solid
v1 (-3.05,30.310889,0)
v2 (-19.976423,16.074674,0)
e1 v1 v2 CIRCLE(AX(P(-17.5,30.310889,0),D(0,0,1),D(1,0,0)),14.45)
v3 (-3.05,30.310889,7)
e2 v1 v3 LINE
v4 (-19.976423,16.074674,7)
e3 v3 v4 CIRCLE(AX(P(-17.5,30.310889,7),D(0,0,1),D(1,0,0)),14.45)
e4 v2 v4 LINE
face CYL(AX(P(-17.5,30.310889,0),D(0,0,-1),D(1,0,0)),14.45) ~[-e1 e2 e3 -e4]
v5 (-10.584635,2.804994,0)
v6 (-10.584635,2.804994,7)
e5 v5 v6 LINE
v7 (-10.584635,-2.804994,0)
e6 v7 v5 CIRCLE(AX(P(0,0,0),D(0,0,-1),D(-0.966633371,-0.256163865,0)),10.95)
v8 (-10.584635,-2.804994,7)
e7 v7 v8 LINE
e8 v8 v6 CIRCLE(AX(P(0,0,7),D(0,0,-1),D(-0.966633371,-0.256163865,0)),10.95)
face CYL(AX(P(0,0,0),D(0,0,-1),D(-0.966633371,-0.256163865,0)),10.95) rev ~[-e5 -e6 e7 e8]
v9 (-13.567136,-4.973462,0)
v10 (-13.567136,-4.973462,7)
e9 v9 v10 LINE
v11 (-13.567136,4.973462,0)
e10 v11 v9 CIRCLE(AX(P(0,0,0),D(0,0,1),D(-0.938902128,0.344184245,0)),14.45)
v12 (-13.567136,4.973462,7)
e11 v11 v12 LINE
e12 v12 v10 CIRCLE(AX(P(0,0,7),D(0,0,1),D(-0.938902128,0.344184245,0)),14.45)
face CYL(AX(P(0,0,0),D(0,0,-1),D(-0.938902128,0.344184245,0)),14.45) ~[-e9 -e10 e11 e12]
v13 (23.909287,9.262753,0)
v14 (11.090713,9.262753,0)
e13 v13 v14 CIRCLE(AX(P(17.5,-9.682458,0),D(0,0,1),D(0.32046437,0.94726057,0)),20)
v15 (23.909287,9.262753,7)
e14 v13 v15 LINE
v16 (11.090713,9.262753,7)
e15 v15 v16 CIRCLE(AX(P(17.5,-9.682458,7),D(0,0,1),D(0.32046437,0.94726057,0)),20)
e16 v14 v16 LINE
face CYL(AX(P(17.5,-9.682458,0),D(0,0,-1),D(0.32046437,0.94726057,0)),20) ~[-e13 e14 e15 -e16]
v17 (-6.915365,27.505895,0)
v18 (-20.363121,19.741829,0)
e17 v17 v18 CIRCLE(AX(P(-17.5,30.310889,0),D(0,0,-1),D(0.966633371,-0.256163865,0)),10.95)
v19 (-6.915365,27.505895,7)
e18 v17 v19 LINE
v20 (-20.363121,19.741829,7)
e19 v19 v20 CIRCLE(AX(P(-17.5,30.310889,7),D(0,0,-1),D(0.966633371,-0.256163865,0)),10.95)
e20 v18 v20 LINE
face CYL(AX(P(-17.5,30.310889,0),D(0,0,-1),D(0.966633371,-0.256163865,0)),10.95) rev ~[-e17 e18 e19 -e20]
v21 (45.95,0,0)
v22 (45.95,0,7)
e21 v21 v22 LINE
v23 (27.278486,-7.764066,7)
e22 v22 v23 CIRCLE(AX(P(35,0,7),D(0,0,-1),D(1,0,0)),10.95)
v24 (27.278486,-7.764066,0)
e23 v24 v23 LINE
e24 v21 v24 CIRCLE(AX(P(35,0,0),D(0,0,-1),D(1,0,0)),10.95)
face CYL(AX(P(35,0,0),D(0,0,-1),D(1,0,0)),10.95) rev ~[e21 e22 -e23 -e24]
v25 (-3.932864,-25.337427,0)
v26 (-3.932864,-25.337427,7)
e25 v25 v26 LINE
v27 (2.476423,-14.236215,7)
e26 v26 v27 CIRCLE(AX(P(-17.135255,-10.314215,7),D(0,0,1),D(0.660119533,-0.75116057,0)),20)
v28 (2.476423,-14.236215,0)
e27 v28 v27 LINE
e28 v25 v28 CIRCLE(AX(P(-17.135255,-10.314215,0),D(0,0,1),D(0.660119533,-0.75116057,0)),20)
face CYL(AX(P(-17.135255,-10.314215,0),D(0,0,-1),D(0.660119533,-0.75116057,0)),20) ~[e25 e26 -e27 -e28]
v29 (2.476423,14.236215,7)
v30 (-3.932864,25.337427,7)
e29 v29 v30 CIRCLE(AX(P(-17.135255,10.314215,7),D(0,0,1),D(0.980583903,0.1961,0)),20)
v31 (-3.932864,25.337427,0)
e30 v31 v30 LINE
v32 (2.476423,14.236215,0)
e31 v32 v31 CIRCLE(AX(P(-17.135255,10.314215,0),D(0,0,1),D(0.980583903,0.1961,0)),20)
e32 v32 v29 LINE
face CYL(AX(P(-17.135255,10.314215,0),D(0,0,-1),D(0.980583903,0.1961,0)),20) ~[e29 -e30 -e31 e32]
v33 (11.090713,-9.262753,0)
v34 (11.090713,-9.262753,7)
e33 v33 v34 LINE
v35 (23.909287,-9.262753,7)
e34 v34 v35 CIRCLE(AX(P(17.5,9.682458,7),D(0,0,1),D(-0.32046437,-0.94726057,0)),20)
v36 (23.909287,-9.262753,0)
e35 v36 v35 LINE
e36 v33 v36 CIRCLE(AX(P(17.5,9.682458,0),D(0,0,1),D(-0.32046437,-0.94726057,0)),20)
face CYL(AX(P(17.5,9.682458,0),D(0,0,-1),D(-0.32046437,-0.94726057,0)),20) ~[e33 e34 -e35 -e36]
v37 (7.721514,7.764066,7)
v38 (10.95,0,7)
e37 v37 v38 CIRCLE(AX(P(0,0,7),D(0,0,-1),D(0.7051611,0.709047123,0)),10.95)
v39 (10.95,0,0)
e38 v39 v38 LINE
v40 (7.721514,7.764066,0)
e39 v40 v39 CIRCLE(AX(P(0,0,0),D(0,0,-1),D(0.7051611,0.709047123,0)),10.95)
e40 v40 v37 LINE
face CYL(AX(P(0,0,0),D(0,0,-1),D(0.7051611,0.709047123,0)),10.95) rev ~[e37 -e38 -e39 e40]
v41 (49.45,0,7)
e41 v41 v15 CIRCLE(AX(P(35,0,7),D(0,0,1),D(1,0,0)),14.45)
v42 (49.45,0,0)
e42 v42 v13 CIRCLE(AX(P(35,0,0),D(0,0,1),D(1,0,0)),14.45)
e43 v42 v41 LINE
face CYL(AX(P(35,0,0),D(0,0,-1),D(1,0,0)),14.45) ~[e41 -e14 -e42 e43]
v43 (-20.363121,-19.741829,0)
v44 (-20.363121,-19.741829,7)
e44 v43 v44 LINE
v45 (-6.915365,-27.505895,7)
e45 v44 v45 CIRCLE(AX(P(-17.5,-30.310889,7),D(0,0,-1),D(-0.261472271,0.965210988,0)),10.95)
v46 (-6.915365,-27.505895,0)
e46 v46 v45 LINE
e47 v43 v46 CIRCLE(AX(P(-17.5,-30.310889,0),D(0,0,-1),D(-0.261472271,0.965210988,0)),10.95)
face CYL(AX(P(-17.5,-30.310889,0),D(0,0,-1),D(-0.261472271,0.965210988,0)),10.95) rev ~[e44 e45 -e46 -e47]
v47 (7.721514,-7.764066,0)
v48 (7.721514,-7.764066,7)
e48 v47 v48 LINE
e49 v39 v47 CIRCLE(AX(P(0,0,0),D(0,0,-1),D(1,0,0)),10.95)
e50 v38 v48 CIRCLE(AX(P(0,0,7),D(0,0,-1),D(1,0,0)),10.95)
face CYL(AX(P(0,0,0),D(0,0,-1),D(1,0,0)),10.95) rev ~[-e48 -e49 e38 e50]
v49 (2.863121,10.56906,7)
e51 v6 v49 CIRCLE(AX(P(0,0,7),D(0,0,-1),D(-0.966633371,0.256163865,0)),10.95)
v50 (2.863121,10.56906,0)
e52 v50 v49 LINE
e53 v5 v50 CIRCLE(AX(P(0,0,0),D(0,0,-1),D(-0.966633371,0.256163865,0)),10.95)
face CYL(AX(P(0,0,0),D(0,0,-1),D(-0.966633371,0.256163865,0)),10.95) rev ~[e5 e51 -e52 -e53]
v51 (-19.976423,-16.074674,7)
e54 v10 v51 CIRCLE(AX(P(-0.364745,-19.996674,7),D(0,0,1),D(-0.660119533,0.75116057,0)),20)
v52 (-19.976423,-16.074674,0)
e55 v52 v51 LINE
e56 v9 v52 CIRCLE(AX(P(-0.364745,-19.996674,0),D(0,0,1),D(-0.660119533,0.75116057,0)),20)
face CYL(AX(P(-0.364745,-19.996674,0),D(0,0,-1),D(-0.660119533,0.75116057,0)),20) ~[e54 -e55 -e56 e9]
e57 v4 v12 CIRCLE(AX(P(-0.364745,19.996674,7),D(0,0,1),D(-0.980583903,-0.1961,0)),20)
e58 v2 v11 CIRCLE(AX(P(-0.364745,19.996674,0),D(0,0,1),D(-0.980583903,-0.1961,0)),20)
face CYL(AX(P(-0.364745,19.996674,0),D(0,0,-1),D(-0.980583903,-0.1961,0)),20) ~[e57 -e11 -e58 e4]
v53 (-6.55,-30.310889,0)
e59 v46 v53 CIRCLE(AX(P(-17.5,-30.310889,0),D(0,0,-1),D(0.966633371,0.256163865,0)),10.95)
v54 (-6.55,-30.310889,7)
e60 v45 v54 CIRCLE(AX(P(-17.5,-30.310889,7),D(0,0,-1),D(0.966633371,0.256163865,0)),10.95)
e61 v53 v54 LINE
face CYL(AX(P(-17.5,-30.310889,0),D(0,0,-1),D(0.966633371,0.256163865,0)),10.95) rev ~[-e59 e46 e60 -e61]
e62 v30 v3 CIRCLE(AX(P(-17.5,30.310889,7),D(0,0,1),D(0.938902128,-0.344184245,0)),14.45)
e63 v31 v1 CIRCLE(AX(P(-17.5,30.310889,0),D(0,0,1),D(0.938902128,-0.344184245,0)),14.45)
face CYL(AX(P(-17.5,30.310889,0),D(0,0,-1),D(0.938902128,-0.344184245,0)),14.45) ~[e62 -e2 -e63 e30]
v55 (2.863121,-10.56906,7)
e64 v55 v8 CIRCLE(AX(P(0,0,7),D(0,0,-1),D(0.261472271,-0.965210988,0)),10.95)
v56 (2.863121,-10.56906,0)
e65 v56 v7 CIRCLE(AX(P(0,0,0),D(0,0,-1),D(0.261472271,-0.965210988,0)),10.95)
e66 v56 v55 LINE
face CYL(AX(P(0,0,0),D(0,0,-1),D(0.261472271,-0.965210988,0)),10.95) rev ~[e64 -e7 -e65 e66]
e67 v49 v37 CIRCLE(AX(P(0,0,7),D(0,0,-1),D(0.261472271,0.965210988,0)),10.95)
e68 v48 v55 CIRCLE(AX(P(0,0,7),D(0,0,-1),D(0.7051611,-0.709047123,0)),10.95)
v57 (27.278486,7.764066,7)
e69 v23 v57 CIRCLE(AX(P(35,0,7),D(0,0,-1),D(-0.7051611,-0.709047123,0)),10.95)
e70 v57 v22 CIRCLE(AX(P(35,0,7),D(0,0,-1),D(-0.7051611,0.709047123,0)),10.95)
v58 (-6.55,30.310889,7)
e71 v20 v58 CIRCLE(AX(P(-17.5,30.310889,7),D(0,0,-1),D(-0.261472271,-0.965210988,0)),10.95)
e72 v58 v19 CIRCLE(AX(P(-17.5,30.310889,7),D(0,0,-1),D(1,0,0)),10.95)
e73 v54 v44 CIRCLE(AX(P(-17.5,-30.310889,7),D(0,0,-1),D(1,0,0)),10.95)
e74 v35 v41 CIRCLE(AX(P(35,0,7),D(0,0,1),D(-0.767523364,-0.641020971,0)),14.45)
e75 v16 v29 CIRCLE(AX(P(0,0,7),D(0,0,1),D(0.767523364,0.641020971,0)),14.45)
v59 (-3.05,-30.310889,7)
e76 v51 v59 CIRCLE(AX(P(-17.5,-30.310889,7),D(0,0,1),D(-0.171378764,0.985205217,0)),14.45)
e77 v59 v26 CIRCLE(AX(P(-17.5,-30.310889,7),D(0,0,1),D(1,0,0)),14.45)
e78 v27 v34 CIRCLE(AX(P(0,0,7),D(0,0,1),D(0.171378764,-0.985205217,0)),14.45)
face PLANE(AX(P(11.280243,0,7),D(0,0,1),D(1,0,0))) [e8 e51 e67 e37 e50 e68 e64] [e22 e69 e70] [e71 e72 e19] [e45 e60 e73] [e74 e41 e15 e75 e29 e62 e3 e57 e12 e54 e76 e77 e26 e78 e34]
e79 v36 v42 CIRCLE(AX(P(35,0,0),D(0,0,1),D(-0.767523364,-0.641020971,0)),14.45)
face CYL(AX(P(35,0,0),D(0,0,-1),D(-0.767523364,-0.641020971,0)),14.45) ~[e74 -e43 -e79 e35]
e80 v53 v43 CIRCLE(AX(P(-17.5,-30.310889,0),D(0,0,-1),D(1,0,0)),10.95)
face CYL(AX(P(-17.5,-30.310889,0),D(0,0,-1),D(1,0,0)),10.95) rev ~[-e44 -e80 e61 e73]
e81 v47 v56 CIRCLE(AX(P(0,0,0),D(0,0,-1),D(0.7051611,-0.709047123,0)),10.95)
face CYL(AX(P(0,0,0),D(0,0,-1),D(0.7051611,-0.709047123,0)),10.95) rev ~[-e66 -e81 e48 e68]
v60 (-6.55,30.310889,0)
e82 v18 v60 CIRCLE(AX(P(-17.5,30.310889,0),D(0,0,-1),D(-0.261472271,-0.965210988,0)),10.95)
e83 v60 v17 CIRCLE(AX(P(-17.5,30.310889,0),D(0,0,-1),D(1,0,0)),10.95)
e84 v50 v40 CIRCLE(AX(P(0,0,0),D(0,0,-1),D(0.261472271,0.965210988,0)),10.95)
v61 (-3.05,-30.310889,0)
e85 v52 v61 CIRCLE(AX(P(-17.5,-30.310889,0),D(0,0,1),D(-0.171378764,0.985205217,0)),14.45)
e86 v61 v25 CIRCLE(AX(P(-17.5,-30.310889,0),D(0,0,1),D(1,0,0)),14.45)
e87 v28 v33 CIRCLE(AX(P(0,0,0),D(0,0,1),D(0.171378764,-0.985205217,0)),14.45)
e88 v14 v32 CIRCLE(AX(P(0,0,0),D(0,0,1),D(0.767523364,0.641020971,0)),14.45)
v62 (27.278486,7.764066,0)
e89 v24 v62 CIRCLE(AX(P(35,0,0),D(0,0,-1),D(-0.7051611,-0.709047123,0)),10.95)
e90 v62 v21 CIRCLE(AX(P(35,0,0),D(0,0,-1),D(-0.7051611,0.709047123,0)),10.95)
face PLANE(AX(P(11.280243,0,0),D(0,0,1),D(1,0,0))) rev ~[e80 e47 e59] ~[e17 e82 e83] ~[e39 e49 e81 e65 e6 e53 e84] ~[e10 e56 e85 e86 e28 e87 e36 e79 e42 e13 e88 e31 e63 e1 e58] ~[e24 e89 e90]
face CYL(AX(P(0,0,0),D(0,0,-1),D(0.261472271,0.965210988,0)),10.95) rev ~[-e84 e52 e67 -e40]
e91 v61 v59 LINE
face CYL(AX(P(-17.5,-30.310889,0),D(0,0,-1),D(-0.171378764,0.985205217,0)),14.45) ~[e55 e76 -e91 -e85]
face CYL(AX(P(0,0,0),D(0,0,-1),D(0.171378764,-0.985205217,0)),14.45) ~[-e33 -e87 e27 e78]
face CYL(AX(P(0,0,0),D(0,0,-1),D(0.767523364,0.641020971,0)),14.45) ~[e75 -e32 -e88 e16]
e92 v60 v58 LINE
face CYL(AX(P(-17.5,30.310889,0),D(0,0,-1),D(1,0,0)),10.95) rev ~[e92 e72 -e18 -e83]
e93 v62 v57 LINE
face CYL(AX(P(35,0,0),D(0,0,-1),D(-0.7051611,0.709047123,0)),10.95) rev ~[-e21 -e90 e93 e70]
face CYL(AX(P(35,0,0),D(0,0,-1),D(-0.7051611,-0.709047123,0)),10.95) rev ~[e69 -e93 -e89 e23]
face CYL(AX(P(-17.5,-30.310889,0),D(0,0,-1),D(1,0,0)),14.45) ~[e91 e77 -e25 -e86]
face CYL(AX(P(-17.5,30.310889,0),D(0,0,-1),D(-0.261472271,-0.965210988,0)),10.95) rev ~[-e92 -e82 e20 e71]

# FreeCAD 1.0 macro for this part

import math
import FreeCAD as App
import Part
import Sketcher

V = App.Vector

doc = App.newDocument("Part")
body = doc.addObject("PartDesign::Body", "Body")

sketch1 = body.newObject("Sketcher::SketchObject", "Sketch")
sketch1.AttachmentSupport = (doc.getObject("XY_Plane"), [""])
sketch1.MapMode = "FlatFace"
sketch1.addGeometry([
    Part.ArcOfCircle(Part.Circle(V(0, 0, 0), V(0, 0, 1), 14.4), math.radians(-80), math.radians(-40)),
    Part.ArcOfCircle(Part.Circle(V(17.5, 9.7, 0), V(0, 0, 1), 20), math.radians(-109), math.radians(-71)),
    Part.ArcOfCircle(Part.Circle(V(35, 0, 0), V(0, 0, 1), 14.4), math.radians(-140), math.radians(0)),
    Part.ArcOfCircle(Part.Circle(V(35, 0, 0), V(0, 0, 1), 14.4), math.radians(0), math.radians(140)),
    Part.ArcOfCircle(Part.Circle(V(17.5, -9.7, 0), V(0, 0, 1), 20), math.radians(71), math.radians(109)),
    Part.ArcOfCircle(Part.Circle(V(0, 0, 0), V(0, 0, 1), 14.4), math.radians(40), math.radians(80)),
    Part.ArcOfCircle(Part.Circle(V(-17.1, 10.3, 0), V(0, 0, 1), 20), math.radians(11), math.radians(49)),
    Part.ArcOfCircle(Part.Circle(V(-17.5, 30.3, 0), V(0, 0, 1), 14.5), math.radians(-20), math.radians(0)),
    Part.ArcOfCircle(Part.Circle(V(-17.5, 30.3, 0), V(0, 0, 1), 14.4), math.radians(0), math.radians(260)),
    Part.ArcOfCircle(Part.Circle(V(-0.4, 20, 0), V(0, 0, 1), 20), math.radians(-169), math.radians(-131)),
    Part.ArcOfCircle(Part.Circle(V(0, 0, 0), V(0, 0, 1), 14.4), math.radians(160), math.radians(200)),
    Part.ArcOfCircle(Part.Circle(V(-0.4, -20, 0), V(0, 0, 1), 20), math.radians(131), math.radians(169)),
    Part.ArcOfCircle(Part.Circle(V(-17.5, -30.3, 0), V(0, 0, 1), 14.4), math.radians(100), math.radians(360)),
    Part.ArcOfCircle(Part.Circle(V(-17.5, -30.3, 0), V(0, 0, 1), 14.5), math.radians(0), math.radians(20)),
    Part.ArcOfCircle(Part.Circle(V(-17.1, -10.3, 0), V(0, 0, 1), 20), math.radians(-49), math.radians(-11)),
    Part.ArcOfCircle(Part.Circle(V(0, 0, 0), V(0, 0, 1), 10.9), math.radians(0), math.radians(45)),
    Part.ArcOfCircle(Part.Circle(V(0, 0, 0), V(0, 0, 1), 10.9), math.radians(-45), math.radians(0)),
    Part.ArcOfCircle(Part.Circle(V(0, 0, 0), V(0, 0, 1), 11), math.radians(-75), math.radians(-45)),
    Part.ArcOfCircle(Part.Circle(V(0, 0, 0), V(0, 0, 1), 10.9), math.radians(-165), math.radians(-75)),
    Part.ArcOfCircle(Part.Circle(V(0, 0, 0), V(0, 0, 1), 10.9), math.radians(165), math.radians(195)),
    Part.ArcOfCircle(Part.Circle(V(0, 0, 0), V(0, 0, 1), 10.9), math.radians(75), math.radians(165)),
    Part.ArcOfCircle(Part.Circle(V(0, 0, 0), V(0, 0, 1), 11), math.radians(45), math.radians(75)),
    Part.ArcOfCircle(Part.Circle(V(-17.5, -30.3, 0), V(0, 0, 1), 10.9), math.radians(15), math.radians(105)),
    Part.ArcOfCircle(Part.Circle(V(-17.5, -30.3, 0), V(0, 0, 1), 10.9), math.radians(0), math.radians(14.84)),
    Part.ArcOfCircle(Part.Circle(V(-17.5, -30.3, 0), V(0, 0, 1), 10.9), math.radians(105), math.radians(360)),
    Part.ArcOfCircle(Part.Circle(V(35, 0, 0), V(0, 0, 1), 10.9), math.radians(135), math.radians(225)),
    Part.ArcOfCircle(Part.Circle(V(35, 0, 0), V(0, 0, 1), 10.9), math.radians(0), math.radians(135)),
    Part.ArcOfCircle(Part.Circle(V(35, 0, 0), V(0, 0, 1), 10.9), math.radians(-135), math.radians(0)),
    Part.ArcOfCircle(Part.Circle(V(-17.5, 30.3, 0), V(0, 0, 1), 10.9), math.radians(-105), math.radians(-15)),
    Part.ArcOfCircle(Part.Circle(V(-17.5, 30.3, 0), V(0, 0, 1), 10.9), math.radians(0), math.radians(255)),
    Part.ArcOfCircle(Part.Circle(V(-17.5, 30.3, 0), V(0, 0, 1), 10.9), math.radians(-14.84), math.radians(0)),
], False)
sketch1.addConstraint([
    Sketcher.Constraint("Coincident", 0, 2, 1, 1),
    Sketcher.Constraint("Coincident", 1, 2, 2, 1),
    Sketcher.Constraint("Tangent", 2, 2, 3, 1),
    Sketcher.Constraint("Coincident", 3, 2, 4, 1),
    Sketcher.Constraint("Coincident", 4, 2, 5, 1),
    Sketcher.Constraint("Coincident", 5, 2, 6, 1),
    Sketcher.Constraint("Coincident", 6, 2, 7, 1),
    Sketcher.Constraint("Tangent", 7, 2, 8, 1),
    Sketcher.Constraint("Coincident", 8, 2, 9, 1),
    Sketcher.Constraint("Coincident", 9, 2, 10, 1),
    Sketcher.Constraint("Coincident", 10, 2, 11, 1),
    Sketcher.Constraint("Coincident", 11, 2, 12, 1),
    Sketcher.Constraint("Tangent", 12, 2, 13, 1),
    Sketcher.Constraint("Coincident", 13, 2, 14, 1),
    Sketcher.Constraint("Coincident", 14, 2, 0, 1),
    Sketcher.Constraint("Tangent", 15, 1, 16, 2),
    Sketcher.Constraint("Tangent", 16, 1, 17, 2),
    Sketcher.Constraint("Tangent", 17, 1, 18, 2),
    Sketcher.Constraint("Tangent", 18, 1, 19, 2),
    Sketcher.Constraint("Tangent", 19, 1, 20, 2),
    Sketcher.Constraint("Tangent", 20, 1, 21, 2),
    Sketcher.Constraint("Tangent", 21, 1, 15, 2),
    Sketcher.Constraint("Tangent", 22, 1, 23, 2),
    Sketcher.Constraint("Tangent", 23, 1, 24, 2),
    Sketcher.Constraint("Tangent", 24, 1, 22, 2),
    Sketcher.Constraint("Tangent", 25, 1, 26, 2),
    Sketcher.Constraint("Tangent", 26, 1, 27, 2),
    Sketcher.Constraint("Tangent", 27, 1, 25, 2),
    Sketcher.Constraint("Tangent", 28, 1, 29, 2),
    Sketcher.Constraint("Tangent", 29, 1, 30, 2),
    Sketcher.Constraint("Tangent", 30, 1, 28, 2),
    Sketcher.Constraint("Coincident", 0, 3, -1, 1),
    Sketcher.Constraint("Coincident", 5, 3, -1, 1),
    Sketcher.Constraint("Coincident", 10, 3, -1, 1),
    Sketcher.Constraint("Coincident", 15, 3, -1, 1),
    Sketcher.Constraint("Coincident", 17, 3, -1, 1),
    Sketcher.Constraint("Coincident", 19, 3, -1, 1),
    Sketcher.Constraint("Coincident", 22, 3, 12, 3),
    Sketcher.Constraint("Coincident", 25, 3, 2, 3),
    Sketcher.Constraint("Coincident", 28, 3, 7, 3),
    Sketcher.Constraint("Equal", 0, 2),
    Sketcher.Constraint("Equal", 2, 3),
    Sketcher.Constraint("Equal", 1, 4),
    Sketcher.Constraint("Equal", 3, 5),
    Sketcher.Constraint("Equal", 4, 6),
    Sketcher.Constraint("Equal", 5, 7),
    Sketcher.Constraint("Equal", 7, 8),
    Sketcher.Constraint("Equal", 6, 9),
    Sketcher.Constraint("Equal", 8, 10),
    Sketcher.Constraint("Equal", 9, 11),
    Sketcher.Constraint("Equal", 10, 12),
    Sketcher.Constraint("Equal", 12, 13),
    Sketcher.Constraint("Equal", 11, 14),
    Sketcher.Constraint("Equal", 21, 22),
    Sketcher.Constraint("Equal", 24, 25),
    Sketcher.Constraint("Equal", 27, 28),
    Sketcher.Constraint("Symmetric", 1, 3, 4, 3, -1),
    Sketcher.Constraint("Symmetric", 9, 3, 11, 3, -1),
    Sketcher.Constraint("Symmetric", 7, 3, 12, 3, -1),
    Sketcher.Constraint("Symmetric", 6, 3, 14, 3, -1),
    Sketcher.Constraint("Symmetric", 25, 1, 27, 1, -1),
    Sketcher.Constraint("PointOnObject", 2, 2, -1),
    Sketcher.Constraint("PointOnObject", 15, 1, -1),
    Sketcher.Constraint("PointOnObject", 26, 1, -1),
    Sketcher.Constraint("Horizontal", 0, 2, 1, 2),
    Sketcher.Constraint("Horizontal", 30, 3, 7, 2),
    Sketcher.Constraint("Horizontal", 24, 3, 12, 2),
    Sketcher.Constraint("Horizontal", 12, 2, 23, 1),
    Sketcher.Constraint("Horizontal", 21, 1, 25, 1),
    Sketcher.Constraint("Horizontal", 16, 1, 27, 1),
    Sketcher.Constraint("Horizontal", 7, 2, 29, 1),
    Sketcher.Constraint("Vertical", 18, 1, 19, 1),
    Sketcher.Constraint("Vertical", 17, 1, 20, 1),
    Sketcher.Constraint("Vertical", 24, 1, 28, 1),
    Sketcher.Constraint("Vertical", 22, 1, 30, 1),
    Sketcher.Constraint("Radius", 1, 20.0),
    Sketcher.Constraint("Radius", 0, 14.45),
    Sketcher.Constraint("Radius", 15, 10.95),
    Sketcher.Constraint("DistanceX", -1, 1, 2, 3, 35.0),
    Sketcher.Constraint("DistanceX", 7, 3, -1, 1, 17.5),
    Sketcher.Constraint("DistanceY", -1, 1, 1, 3, 9.682458),
    Sketcher.Constraint("DistanceY", -1, 1, 7, 3, 30.310889),
    Sketcher.Constraint("DistanceX", -1, 1, 17, 1, 2.863121),
    Sketcher.Constraint("DistanceX", 24, 1, -1, 1, 20.363121),
    Sketcher.Constraint("DistanceX", 6, 3, -1, 1, 17.135255),
    Sketcher.Constraint("DistanceY", -1, 1, 6, 3, 10.314215),
    Sketcher.Constraint("DistanceX", 9, 3, -1, 1, 0.364745),
    Sketcher.Constraint("DistanceY", -1, 1, 9, 3, 19.996674),
    Sketcher.Constraint("DistanceX", -1, 1, 16, 1, 7.721514),
    Sketcher.Constraint("DistanceX", 18, 1, -1, 1, 10.584635),
    Sketcher.Constraint("DistanceX", 22, 1, -1, 1, 6.915365),
])
pad1 = body.newObject("PartDesign::Pad", "Pad")
pad1.Profile = sketch1
pad1.Length = 7

doc.recompute()
